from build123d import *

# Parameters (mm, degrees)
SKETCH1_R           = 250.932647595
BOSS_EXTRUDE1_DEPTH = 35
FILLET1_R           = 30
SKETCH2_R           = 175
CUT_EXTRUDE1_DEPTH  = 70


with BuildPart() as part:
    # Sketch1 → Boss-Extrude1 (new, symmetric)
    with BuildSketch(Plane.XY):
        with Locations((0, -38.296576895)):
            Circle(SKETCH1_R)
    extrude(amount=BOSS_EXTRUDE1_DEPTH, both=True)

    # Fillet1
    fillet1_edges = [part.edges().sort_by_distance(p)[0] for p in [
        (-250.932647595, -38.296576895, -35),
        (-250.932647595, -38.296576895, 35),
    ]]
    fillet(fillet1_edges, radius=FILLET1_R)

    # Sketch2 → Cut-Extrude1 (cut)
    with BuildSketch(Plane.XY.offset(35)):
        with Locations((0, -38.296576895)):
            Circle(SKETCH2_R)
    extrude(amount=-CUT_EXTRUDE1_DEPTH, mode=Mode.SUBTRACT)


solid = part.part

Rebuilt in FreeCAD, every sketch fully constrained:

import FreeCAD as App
import Part
import Sketcher

V = App.Vector
Q = App.Units.Quantity


def edges_at(feature, points):
    """Names of the edges that pass closest to the given points."""
    edges = feature.Shape.Edges
    near = lambda p: min(range(len(edges)), key=lambda i: edges[i].distToShape(Part.Vertex(*p))[0])
    return sorted({f"Edge{near(p) + 1}" for p in points})

doc = App.newDocument("Part")
body = doc.addObject("PartDesign::Body", "Body")

# Sketch on XY plane
sketch1 = doc.addObject("Sketcher::SketchObject", "Sketch")
body.addObject(sketch1)
sketch1.AttachmentSupport = (doc.XY_Plane, [""])
sketch1.MapMode = "FlatFace"
sketch1.addGeometry(Part.Circle(V(0, -38, 0), V(0, 0, 1), 251), False)
sketch1.addConstraint([
    Sketcher.Constraint("PointOnObject", 0, 3, -2),
    Sketcher.Constraint("Diameter", 0, Q("501.865295 mm")),
    Sketcher.Constraint("DistanceY", 0, 3, -1, 1, Q("38.296577 mm")),
])
pad1 = doc.addObject("PartDesign::Pad", "Pad")
body.addObject(pad1)
pad1.Profile = sketch1
pad1.Length = 70
pad1.Midplane = True
doc.recompute()

fillet = doc.addObject("PartDesign::Fillet", "Fillet")
body.addObject(fillet)
fillet.Base = (pad1, edges_at(pad1, [(-250.933, -38.297, -35), (-250.933, -38.297, 35)]))
fillet.Radius = 30

# Sketch on XY plane
sketch2 = doc.addObject("Sketcher::SketchObject", "Sketch001")
body.addObject(sketch2)
sketch2.AttachmentSupport = (doc.XY_Plane, [""])
sketch2.MapMode = "FlatFace"
sketch2.AttachmentOffset = App.Placement(V(0, 0, 35), App.Rotation())
sketch2.addGeometry(Part.Circle(V(0, -38, 0), V(0, 0, 1), 175), False)
sketch2.addConstraint([
    Sketcher.Constraint("PointOnObject", 0, 3, -2),
    Sketcher.Constraint("Diameter", 0, Q("350 mm")),
    Sketcher.Constraint("DistanceY", 0, 3, -1, 1, Q("38.296577 mm")),
])
pocket1 = doc.addObject("PartDesign::Pocket", "Pocket")
body.addObject(pocket1)
pocket1.Profile = sketch2
pocket1.Length = 70

doc.recompute()
